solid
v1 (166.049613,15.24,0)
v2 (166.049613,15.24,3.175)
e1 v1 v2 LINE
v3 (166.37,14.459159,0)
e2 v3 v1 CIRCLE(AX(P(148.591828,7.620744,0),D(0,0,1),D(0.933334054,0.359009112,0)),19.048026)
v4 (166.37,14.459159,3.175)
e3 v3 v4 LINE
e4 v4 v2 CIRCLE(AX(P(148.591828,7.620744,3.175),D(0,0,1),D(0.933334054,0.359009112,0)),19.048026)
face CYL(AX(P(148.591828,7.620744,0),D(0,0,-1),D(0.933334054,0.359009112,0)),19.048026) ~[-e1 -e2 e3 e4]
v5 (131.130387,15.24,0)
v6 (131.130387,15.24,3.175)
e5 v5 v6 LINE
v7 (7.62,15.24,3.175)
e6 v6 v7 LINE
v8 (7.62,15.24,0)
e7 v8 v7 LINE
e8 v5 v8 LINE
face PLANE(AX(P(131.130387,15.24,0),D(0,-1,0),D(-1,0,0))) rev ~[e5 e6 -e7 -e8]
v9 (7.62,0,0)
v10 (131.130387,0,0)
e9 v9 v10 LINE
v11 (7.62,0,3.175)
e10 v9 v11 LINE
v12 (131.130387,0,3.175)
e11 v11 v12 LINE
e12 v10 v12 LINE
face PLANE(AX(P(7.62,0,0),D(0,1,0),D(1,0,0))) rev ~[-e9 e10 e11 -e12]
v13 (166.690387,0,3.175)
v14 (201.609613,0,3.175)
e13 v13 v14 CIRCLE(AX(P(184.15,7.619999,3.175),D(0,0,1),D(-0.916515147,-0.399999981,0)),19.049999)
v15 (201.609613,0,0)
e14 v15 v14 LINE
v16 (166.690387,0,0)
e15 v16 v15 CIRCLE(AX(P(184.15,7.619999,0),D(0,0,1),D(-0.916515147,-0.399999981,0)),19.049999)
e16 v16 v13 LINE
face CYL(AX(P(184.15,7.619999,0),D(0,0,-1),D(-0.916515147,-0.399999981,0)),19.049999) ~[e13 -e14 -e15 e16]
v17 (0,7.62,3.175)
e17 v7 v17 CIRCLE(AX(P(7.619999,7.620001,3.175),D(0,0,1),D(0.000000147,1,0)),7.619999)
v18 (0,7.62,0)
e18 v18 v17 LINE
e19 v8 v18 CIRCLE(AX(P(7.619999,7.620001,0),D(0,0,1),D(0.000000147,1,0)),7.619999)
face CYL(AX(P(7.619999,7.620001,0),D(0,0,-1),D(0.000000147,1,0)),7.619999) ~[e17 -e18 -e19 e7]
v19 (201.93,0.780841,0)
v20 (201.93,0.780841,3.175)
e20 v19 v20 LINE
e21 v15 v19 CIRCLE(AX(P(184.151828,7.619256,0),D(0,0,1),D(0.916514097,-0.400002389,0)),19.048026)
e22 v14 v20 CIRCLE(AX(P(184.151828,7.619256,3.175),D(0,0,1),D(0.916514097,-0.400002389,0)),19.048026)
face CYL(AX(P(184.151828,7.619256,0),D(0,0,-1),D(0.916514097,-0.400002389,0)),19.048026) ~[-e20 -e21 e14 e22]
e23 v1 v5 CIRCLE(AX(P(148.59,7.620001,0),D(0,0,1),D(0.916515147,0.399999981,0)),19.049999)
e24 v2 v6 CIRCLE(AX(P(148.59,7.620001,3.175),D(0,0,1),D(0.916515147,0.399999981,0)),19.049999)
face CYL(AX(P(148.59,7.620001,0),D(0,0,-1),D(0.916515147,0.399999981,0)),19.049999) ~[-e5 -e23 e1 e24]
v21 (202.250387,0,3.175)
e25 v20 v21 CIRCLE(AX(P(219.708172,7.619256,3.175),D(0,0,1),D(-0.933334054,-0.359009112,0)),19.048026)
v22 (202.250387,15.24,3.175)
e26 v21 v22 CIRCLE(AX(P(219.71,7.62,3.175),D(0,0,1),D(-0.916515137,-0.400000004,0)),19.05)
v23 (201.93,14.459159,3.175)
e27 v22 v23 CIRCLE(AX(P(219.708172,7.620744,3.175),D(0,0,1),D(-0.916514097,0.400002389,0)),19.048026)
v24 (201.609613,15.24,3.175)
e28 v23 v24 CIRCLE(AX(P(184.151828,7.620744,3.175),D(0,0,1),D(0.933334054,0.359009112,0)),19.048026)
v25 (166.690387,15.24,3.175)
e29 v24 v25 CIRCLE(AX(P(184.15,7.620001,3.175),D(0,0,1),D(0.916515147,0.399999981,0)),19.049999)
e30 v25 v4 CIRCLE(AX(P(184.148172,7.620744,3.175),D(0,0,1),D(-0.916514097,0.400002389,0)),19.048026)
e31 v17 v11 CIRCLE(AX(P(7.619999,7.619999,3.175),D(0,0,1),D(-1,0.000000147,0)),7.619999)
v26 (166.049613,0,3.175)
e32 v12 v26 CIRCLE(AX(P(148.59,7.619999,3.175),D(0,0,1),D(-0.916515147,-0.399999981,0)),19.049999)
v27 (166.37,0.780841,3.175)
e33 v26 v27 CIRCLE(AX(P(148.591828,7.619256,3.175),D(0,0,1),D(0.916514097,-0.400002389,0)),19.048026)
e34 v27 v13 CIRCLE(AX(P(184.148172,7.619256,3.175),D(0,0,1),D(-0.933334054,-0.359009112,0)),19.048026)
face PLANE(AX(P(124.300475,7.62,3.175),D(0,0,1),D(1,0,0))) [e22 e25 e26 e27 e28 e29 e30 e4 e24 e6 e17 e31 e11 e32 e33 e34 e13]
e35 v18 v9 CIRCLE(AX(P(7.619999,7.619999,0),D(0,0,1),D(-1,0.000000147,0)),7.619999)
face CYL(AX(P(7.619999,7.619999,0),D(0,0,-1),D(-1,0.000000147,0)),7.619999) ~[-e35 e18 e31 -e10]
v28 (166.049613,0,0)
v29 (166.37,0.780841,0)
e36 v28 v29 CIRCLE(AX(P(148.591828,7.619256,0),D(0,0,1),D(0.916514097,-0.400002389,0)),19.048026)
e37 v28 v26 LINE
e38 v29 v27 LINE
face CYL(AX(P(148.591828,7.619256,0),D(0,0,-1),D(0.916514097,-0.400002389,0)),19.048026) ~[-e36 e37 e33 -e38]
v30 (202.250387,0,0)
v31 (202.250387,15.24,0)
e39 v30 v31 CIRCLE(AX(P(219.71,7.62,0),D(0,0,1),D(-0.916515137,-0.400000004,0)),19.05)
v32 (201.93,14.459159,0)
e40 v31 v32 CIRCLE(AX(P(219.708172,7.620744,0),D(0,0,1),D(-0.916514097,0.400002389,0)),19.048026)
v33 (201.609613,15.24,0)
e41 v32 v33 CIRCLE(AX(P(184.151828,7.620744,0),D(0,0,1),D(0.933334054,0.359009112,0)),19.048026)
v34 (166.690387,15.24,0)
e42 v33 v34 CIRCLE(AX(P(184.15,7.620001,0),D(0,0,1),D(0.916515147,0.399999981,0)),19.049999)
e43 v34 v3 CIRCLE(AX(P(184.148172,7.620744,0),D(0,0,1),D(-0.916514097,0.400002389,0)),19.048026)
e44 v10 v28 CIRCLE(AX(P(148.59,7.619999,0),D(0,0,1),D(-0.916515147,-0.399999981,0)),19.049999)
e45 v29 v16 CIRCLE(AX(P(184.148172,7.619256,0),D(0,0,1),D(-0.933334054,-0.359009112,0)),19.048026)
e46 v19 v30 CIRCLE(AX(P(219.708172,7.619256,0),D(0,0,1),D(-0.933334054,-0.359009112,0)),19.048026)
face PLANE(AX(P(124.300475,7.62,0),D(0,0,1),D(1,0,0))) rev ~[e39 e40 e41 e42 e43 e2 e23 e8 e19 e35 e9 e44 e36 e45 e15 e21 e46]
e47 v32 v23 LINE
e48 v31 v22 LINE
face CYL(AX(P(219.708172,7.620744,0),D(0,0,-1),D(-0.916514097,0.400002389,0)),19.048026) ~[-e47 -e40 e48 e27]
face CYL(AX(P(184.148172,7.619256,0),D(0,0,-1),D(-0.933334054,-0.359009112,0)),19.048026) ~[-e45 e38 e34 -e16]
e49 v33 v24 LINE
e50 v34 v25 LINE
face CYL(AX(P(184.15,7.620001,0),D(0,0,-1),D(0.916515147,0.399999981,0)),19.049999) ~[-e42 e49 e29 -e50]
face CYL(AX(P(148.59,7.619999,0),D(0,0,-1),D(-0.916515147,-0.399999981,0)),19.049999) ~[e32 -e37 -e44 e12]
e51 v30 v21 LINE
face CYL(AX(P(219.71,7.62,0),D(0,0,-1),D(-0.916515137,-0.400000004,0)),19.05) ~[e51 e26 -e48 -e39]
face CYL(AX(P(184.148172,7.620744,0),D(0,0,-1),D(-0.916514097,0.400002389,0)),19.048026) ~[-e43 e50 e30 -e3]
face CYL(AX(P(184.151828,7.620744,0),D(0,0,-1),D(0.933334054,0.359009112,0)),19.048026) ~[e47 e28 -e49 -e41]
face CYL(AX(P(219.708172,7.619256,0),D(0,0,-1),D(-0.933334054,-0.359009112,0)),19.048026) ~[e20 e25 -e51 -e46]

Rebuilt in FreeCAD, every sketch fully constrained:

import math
import FreeCAD as App
import Part
import Sketcher
from FreeCAD import Vector
Q = App.Units.Quantity

doc = App.newDocument("Part")
body = doc.addObject("PartDesign::Body", "Body")

sketch1 = body.newObject("Sketcher::SketchObject", "Sketch")
sketch1.AttachmentSupport = (doc.getObject("XY_Plane"), [""])
sketch1.MapMode = "FlatFace"
sketch1.addGeometry([
    Part.ArcOfCircle(Part.Circle(Vector(184.151828, 7.619256, 0), Vector(0, 0, 1), 19.048026), math.radians(-23.578328), math.radians(-21.039355)),
    Part.ArcOfCircle(Part.Circle(Vector(219.708172, 7.619256, 0), Vector(0, 0, 1), 19.048026), math.radians(-158.960645), math.radians(-156.421672)),
    Part.ArcOfCircle(Part.Circle(Vector(219.71, 7.62, 0), Vector(0, 0, 1), 19.05), math.radians(-156.421821), math.radians(156.421821)),
    Part.ArcOfCircle(Part.Circle(Vector(219.708172, 7.620744, 0), Vector(0, 0, 1), 19.048026), math.radians(156.421672), math.radians(158.960645)),
    Part.ArcOfCircle(Part.Circle(Vector(184.151828, 7.620744, 0), Vector(0, 0, 1), 19.048026), math.radians(21.039355), math.radians(23.578328)),
    Part.ArcOfCircle(Part.Circle(Vector(184.15, 7.620001, 0), Vector(0, 0, 1), 19.049999), math.radians(23.578177), math.radians(156.421823)),
    Part.ArcOfCircle(Part.Circle(Vector(184.148172, 7.620744, 0), Vector(0, 0, 1), 19.048026), math.radians(156.421672), math.radians(158.960645)),
    Part.ArcOfCircle(Part.Circle(Vector(148.591828, 7.620744, 0), Vector(0, 0, 1), 19.048026), math.radians(21.039355), math.radians(23.578328)),
    Part.ArcOfCircle(Part.Circle(Vector(148.59, 7.620001, 0), Vector(0, 0, 1), 19.049999), math.radians(23.578177), math.radians(156.421823)),
    Part.LineSegment(Vector(131.130387, 15.24, 0), Vector(7.62, 15.24, 0)),
    Part.ArcOfCircle(Part.Circle(Vector(7.619999, 7.620001, 0), Vector(0, 0, 1), 7.619999), math.radians(89.999992), math.radians(180.000008)),
    Part.ArcOfCircle(Part.Circle(Vector(7.619999, 7.619999, 0), Vector(0, 0, 1), 7.619999), math.radians(179.999992), math.radians(270.000008)),
    Part.LineSegment(Vector(7.62, 0, 0), Vector(131.130387, 0, 0)),
    Part.ArcOfCircle(Part.Circle(Vector(148.59, 7.619999, 0), Vector(0, 0, 1), 19.049999), math.radians(-156.421823), math.radians(-23.578177)),
    Part.ArcOfCircle(Part.Circle(Vector(148.591828, 7.619256, 0), Vector(0, 0, 1), 19.048026), math.radians(-23.578328), math.radians(-21.039355)),
    Part.ArcOfCircle(Part.Circle(Vector(184.148172, 7.619256, 0), Vector(0, 0, 1), 19.048026), math.radians(-158.960645), math.radians(-156.421672)),
    Part.ArcOfCircle(Part.Circle(Vector(184.15, 7.619999, 0), Vector(0, 0, 1), 19.049999), math.radians(-156.421823), math.radians(-23.578177)),
], False)
sketch1.addConstraint([
    Sketcher.Constraint("Coincident", 0, 2, 1, 1),
    Sketcher.Constraint("Coincident", 1, 2, 2, 1),
    Sketcher.Constraint("Coincident", 2, 2, 3, 1),
    Sketcher.Constraint("Coincident", 3, 2, 4, 1),
    Sketcher.Constraint("Coincident", 4, 2, 5, 1),
    Sketcher.Constraint("Coincident", 5, 2, 6, 1),
    Sketcher.Constraint("Coincident", 6, 2, 7, 1),
    Sketcher.Constraint("Coincident", 7, 2, 8, 1),
    Sketcher.Constraint("Coincident", 8, 2, 9, 1),
    Sketcher.Constraint("Tangent", 9, 2, 10, 1),
    Sketcher.Constraint("Tangent", 10, 2, 11, 1),
    Sketcher.Constraint("Tangent", 11, 2, 12, 1),
    Sketcher.Constraint("Coincident", 12, 2, 13, 1),
    Sketcher.Constraint("Coincident", 13, 2, 14, 1),
    Sketcher.Constraint("Coincident", 14, 2, 15, 1),
    Sketcher.Constraint("Coincident", 15, 2, 16, 1),
    Sketcher.Constraint("Coincident", 16, 2, 0, 1),
    Sketcher.Constraint("Horizontal", 9),
    Sketcher.Constraint("Horizontal", 12),
    Sketcher.Constraint("Coincident", 13, 3, 8, 3),
    Sketcher.Constraint("Coincident", 16, 3, 5, 3),
    Sketcher.Constraint("Equal", 0, 1),
    Sketcher.Constraint("Equal", 1, 3),
    Sketcher.Constraint("Equal", 3, 4),
    Sketcher.Constraint("Equal", 2, 5),
    Sketcher.Constraint("Equal", 4, 6),
    Sketcher.Constraint("Equal", 6, 7),
    Sketcher.Constraint("Equal", 5, 8),
    Sketcher.Constraint("Equal", 10, 11),
    Sketcher.Constraint("Equal", 8, 13),
    Sketcher.Constraint("Equal", 7, 14),
    Sketcher.Constraint("Equal", 14, 15),
    Sketcher.Constraint("Equal", 13, 16),
    Sketcher.Constraint("PointOnObject", 1, 2, -1),
    Sketcher.Constraint("PointOnObject", 10, 2, -2),
    Sketcher.Constraint("PointOnObject", 11, 2, -1),
    Sketcher.Constraint("PointOnObject", 13, 2, -1),
    Sketcher.Constraint("PointOnObject", 15, 2, -1),
    Sketcher.Constraint("PointOnObject", 16, 2, -1),
    Sketcher.Constraint("Horizontal", 0, 3, 1, 3),
    Sketcher.Constraint("Horizontal", 3, 3, 4, 3),
    Sketcher.Constraint("Horizontal", 2, 3, 5, 3),
    Sketcher.Constraint("Horizontal", 4, 3, 6, 3),
    Sketcher.Constraint("Horizontal", 6, 3, 7, 3),
    Sketcher.Constraint("Horizontal", 5, 3, 8, 3),
    Sketcher.Constraint("Horizontal", 8, 3, 10, 3),
    Sketcher.Constraint("Horizontal", 1, 3, 14, 3),
    Sketcher.Constraint("Horizontal", 14, 3, 15, 3),
    Sketcher.Constraint("Horizontal", 2, 2, 4, 2),
    Sketcher.Constraint("Horizontal", 4, 2, 5, 2),
    Sketcher.Constraint("Horizontal", 3, 2, 6, 2),
    Sketcher.Constraint("Horizontal", 5, 2, 7, 2),
    Sketcher.Constraint("Horizontal", 7, 2, 8, 2),
    Sketcher.Constraint("Horizontal", 16, 3, 10, 2),
    Sketcher.Constraint("Vertical", 1, 3, 3, 3),
    Sketcher.Constraint("Radius", 10, Q("0.3 in")),
    Sketcher.Constraint("Radius", 2, Q("0.75 in")),
    Sketcher.Constraint("DistanceX", 5, 3, 2, 3, Q("1.4 in")),
    Sketcher.Constraint("DistanceX", -1, 1, 2, 3, Q("8.65 in")),
    Sketcher.Constraint("Radius", 0, 19.048026),
    Sketcher.Constraint("DistanceX", -1, 1, 0, 3, 184.151828),
])
pad1 = body.newObject("PartDesign::Pad", "Pad")
pad1.Profile = sketch1
pad1.Length = Q("0.125 in")

doc.recompute()
